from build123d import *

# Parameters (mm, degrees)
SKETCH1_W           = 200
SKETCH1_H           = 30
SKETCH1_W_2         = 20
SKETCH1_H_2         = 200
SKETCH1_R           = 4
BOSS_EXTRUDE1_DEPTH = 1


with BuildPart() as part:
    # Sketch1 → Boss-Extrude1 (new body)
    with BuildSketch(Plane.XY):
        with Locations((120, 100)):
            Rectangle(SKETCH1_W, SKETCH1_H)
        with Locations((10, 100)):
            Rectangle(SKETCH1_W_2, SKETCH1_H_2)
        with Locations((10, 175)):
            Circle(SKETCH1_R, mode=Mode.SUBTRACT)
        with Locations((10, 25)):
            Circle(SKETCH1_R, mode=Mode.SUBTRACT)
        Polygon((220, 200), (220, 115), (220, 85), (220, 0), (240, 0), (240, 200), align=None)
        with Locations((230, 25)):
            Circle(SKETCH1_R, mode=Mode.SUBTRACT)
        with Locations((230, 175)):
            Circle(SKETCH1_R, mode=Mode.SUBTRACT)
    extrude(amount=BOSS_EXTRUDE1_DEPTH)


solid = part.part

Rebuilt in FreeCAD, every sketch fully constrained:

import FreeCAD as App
import Part
import Sketcher
from FreeCAD import Vector
Q = App.Units.Quantity


def add_polygon(sketch, points):
    """Adds a closed chain of lines whose ends are joined by coincident constraints."""
    first, n = sketch.GeometryCount, len(points)
    for a, b in zip(points, points[1:] + points[:1]):
        sketch.addGeometry(Part.LineSegment(App.Vector(*a, 0), App.Vector(*b, 0)), False)
    for i in range(n):
        sketch.addConstraint(Sketcher.Constraint("Coincident", first + i, 2, first + (i + 1) % n, 1))

doc = App.newDocument("Part")
params = doc.addObject("Spreadsheet::Sheet", "Params")
for row, (alias, value) in enumerate([
    ("sketch1_diameter", "8 mm"),
    ("sketch1_width", "200 mm"),
    ("sketch1_width2", "20 mm"),
    ("sketch1_height", "85 mm"),
    ("pad1_length", "1 mm"),
], start=1):
    params.set(f"A{row}", alias)
    params.set(f"B{row}", "=" + value)
    params.setAlias(f"B{row}", alias)

body = doc.addObject("PartDesign::Body", "Body")

sketch1 = body.newObject("Sketcher::SketchObject", "Sketch")
sketch1.AttachmentSupport = (doc.getObject("XY_Plane"), [""])
sketch1.MapMode = "FlatFace"
add_polygon(sketch1, [(20, 85), (220, 85), (220, 0), (240, 0), (240, 200), (220, 200), (220, 115), (20, 115), (20, 200), (0, 200), (0, 0), (20, 0)])
sketch1.addGeometry(Part.Circle(Vector(10, 25, 0), Vector(0, 0, 1), 4), False)
sketch1.addGeometry(Part.Circle(Vector(230, 25, 0), Vector(0, 0, 1), 4), False)
sketch1.addGeometry(Part.Circle(Vector(10, 175, 0), Vector(0, 0, 1), 4), False)
sketch1.addGeometry(Part.Circle(Vector(230, 175, 0), Vector(0, 0, 1), 4), False)
sketch1.addConstraint(Sketcher.Constraint("Horizontal", 0))
sketch1.addConstraint(Sketcher.Constraint("Vertical", 1))
sketch1.addConstraint(Sketcher.Constraint("Horizontal", 2))
sketch1.addConstraint(Sketcher.Constraint("Vertical", 3))
sketch1.addConstraint(Sketcher.Constraint("Horizontal", 4))
sketch1.addConstraint(Sketcher.Constraint("Vertical", 5))
sketch1.addConstraint(Sketcher.Constraint("Horizontal", 6))
sketch1.addConstraint(Sketcher.Constraint("Vertical", 7))
sketch1.addConstraint(Sketcher.Constraint("Horizontal", 8))
sketch1.addConstraint(Sketcher.Constraint("Vertical", 9))
sketch1.addConstraint(Sketcher.Constraint("Horizontal", 10))
sketch1.addConstraint(Sketcher.Constraint("Vertical", 11))
sketch1.addConstraint(Sketcher.Constraint("Coincident", 9, 2, -1, 1))
sketch1.addConstraint(Sketcher.Constraint("Equal", 12, 13))
sketch1.addConstraint(Sketcher.Constraint("Equal", 13, 14))
sketch1.addConstraint(Sketcher.Constraint("Equal", 14, 15))
sketch1.addConstraint(Sketcher.Constraint("PointOnObject", 1, 2, -1))
sketch1.addConstraint(Sketcher.Constraint("Horizontal", 12, 3, 13, 3))
sketch1.addConstraint(Sketcher.Constraint("Horizontal", 14, 3, 15, 3))
sketch1.addConstraint(Sketcher.Constraint("Horizontal", 4, 2, 7, 2))
sketch1.addConstraint(Sketcher.Constraint("Vertical", 12, 3, 14, 3))
sketch1.addConstraint(Sketcher.Constraint("Vertical", 13, 3, 15, 3))
sketch1.addConstraint(Sketcher.Constraint("Vertical", 1, 2, 4, 2))
sketch1.addConstraint(Sketcher.Constraint("Vertical", 7, 2, 10, 2))
sketch1.addConstraint(Sketcher.Constraint("Equal", 4, 8))
sketch1.addConstraint(Sketcher.Constraint("Equal", 6, 3))
sketch1.addConstraint(Sketcher.Constraint("Equal", 1, 5))
sketch1.addConstraint(Sketcher.Constraint("Diameter", 12, Q("8 mm")))
sketch1.addConstraint(Sketcher.Constraint("DistanceX", 0, 1, 0, 2, Q("200 mm")))
sketch1.addConstraint(Sketcher.Constraint("DistanceX", 2, 1, 2, 2, Q("20 mm")))
sketch1.addConstraint(Sketcher.Constraint("DistanceY", 1, 2, 1, 1, Q("85 mm")))
sketch1.addConstraint(Sketcher.Constraint("DistanceX", -1, 1, 12, 3, Q("10 mm")))
sketch1.addConstraint(Sketcher.Constraint("DistanceY", -1, 1, 12, 3, Q("25 mm")))
sketch1.addConstraint(Sketcher.Constraint("DistanceX", -1, 1, 13, 3, Q("230 mm")))
sketch1.addConstraint(Sketcher.Constraint("DistanceY", -1, 1, 14, 3, Q("175 mm")))
sketch1.setExpression("Constraints[39]", "Params.sketch1_diameter")
sketch1.setExpression("Constraints[40]", "Params.sketch1_width")
sketch1.setExpression("Constraints[41]", "Params.sketch1_width2")
sketch1.setExpression("Constraints[42]", "Params.sketch1_height")
pad1 = body.newObject("PartDesign::Pad", "Pad")
pad1.Profile = sketch1
pad1.setExpression("Length", "Params.pad1_length")

doc.recompute()
